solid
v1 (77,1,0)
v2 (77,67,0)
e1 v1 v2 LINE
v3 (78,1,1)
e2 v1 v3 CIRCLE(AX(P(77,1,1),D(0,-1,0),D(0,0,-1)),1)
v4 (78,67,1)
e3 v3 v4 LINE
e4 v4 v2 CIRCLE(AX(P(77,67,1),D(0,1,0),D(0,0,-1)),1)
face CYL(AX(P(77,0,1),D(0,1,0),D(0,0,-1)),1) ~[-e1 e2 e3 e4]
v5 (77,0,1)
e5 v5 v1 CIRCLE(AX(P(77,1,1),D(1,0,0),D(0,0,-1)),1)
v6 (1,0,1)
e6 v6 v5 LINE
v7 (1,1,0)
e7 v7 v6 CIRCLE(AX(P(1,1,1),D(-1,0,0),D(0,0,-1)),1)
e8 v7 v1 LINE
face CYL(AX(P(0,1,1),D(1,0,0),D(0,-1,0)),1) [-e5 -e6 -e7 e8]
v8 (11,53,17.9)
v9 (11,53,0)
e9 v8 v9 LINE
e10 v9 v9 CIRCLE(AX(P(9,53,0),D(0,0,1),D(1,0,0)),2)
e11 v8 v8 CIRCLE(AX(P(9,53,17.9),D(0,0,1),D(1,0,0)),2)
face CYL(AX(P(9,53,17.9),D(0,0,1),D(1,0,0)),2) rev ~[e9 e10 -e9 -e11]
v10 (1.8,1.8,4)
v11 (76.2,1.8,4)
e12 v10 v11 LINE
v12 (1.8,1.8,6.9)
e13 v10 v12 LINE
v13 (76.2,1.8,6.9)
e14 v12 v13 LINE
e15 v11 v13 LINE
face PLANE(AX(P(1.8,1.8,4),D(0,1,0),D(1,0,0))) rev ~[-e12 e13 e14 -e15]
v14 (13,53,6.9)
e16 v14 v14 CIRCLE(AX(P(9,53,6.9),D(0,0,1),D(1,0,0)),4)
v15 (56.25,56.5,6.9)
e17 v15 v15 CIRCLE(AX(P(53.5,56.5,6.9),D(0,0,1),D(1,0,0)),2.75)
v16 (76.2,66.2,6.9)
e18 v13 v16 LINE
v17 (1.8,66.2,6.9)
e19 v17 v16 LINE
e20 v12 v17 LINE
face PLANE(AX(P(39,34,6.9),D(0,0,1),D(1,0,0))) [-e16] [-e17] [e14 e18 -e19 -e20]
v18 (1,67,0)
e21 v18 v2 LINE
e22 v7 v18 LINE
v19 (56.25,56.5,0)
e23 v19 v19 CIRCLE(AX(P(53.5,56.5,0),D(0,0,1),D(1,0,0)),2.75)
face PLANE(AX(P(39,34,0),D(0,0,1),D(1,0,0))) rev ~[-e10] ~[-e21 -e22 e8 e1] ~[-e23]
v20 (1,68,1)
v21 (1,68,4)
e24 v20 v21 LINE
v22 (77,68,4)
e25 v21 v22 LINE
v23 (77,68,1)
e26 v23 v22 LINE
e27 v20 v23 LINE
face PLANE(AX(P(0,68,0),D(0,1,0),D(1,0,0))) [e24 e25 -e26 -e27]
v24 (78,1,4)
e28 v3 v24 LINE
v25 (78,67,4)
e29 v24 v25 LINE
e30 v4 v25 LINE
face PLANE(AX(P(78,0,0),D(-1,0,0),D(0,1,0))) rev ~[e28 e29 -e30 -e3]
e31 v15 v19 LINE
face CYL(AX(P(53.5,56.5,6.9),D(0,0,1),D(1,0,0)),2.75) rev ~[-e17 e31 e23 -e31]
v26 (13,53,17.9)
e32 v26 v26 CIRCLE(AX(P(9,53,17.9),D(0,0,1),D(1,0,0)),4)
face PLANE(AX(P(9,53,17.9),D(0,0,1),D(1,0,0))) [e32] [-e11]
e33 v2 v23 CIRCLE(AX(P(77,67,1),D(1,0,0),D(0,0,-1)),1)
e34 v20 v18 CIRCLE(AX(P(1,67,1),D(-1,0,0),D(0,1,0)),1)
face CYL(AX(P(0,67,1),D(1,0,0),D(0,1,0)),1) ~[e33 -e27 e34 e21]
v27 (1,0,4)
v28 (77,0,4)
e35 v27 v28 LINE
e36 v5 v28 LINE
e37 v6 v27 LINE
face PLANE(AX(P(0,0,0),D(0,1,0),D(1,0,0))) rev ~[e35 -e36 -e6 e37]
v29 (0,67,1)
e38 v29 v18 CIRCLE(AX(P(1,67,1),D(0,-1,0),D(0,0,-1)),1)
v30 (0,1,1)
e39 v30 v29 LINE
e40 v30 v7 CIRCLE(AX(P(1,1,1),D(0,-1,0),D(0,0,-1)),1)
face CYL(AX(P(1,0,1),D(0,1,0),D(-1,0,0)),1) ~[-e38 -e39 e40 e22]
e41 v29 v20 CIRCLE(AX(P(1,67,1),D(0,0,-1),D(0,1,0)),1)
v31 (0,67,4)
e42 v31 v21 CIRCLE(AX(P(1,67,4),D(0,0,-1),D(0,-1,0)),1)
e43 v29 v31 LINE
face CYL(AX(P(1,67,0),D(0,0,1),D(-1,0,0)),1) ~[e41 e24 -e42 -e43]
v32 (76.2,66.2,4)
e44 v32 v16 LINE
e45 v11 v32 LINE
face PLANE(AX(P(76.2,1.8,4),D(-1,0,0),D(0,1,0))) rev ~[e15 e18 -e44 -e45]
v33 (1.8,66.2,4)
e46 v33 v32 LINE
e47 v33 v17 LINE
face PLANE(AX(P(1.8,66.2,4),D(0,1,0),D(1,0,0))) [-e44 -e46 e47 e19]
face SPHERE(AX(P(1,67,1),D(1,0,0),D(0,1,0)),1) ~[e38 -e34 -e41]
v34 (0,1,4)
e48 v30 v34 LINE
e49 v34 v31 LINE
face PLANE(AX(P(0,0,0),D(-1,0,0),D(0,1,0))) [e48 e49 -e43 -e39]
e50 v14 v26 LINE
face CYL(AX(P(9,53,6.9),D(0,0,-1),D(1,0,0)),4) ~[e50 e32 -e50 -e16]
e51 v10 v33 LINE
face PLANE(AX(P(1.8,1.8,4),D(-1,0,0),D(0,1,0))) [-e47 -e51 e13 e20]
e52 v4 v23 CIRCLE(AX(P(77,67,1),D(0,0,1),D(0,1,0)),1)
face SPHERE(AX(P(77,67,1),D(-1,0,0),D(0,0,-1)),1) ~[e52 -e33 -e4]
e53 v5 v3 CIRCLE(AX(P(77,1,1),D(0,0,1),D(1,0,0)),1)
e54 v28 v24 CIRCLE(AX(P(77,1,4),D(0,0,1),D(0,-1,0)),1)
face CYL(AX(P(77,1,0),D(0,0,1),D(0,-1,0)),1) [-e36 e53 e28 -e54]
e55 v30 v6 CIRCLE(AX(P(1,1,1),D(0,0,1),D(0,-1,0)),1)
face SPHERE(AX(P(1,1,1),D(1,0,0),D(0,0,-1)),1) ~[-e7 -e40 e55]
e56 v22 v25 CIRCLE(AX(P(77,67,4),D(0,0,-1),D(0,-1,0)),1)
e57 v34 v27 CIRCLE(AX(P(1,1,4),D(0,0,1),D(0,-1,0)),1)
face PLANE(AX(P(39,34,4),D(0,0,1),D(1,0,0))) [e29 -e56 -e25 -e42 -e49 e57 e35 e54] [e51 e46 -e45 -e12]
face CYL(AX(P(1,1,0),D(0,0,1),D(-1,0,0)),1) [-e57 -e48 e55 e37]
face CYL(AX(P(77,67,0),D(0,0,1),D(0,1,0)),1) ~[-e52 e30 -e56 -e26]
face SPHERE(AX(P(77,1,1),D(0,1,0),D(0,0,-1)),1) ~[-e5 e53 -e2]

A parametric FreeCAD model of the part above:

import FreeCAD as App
import Part
import Sketcher

V = App.Vector
Q = App.Units.Quantity


def edges_at(feature, points):
    """Names of the edges that pass closest to the given points."""
    edges = feature.Shape.Edges
    near = lambda p: min(range(len(edges)), key=lambda i: edges[i].distToShape(Part.Vertex(*p))[0])
    return sorted({f"Edge{near(p) + 1}" for p in points})

doc = App.newDocument("Part")
body = doc.addObject("PartDesign::Body", "Body")

# Sketch on XY plane
sketch1 = body.newObject("Sketcher::SketchObject", "Sketch")
sketch1.AttachmentSupport = (doc.getObject("XY_Plane"), [""])
sketch1.MapMode = "FlatFace"
sketch1.addGeometry(Part.LineSegment(V(0, 68, 0), V(0, 0, 0)), False)
sketch1.addGeometry(Part.LineSegment(V(0, 0, 0), V(78, 0, 0)), False)
sketch1.addGeometry(Part.LineSegment(V(78, 0, 0), V(78, 68, 0)), False)
sketch1.addGeometry(Part.LineSegment(V(78, 68, 0), V(0, 68, 0)), False)
sketch1.addConstraint(Sketcher.Constraint("Coincident", 0, 2, 1, 1))
sketch1.addConstraint(Sketcher.Constraint("Coincident", 1, 2, 2, 1))
sketch1.addConstraint(Sketcher.Constraint("Coincident", 2, 2, 3, 1))
sketch1.addConstraint(Sketcher.Constraint("Coincident", 3, 2, 0, 1))
sketch1.addConstraint(Sketcher.Constraint("Vertical", 0))
sketch1.addConstraint(Sketcher.Constraint("Horizontal", 1))
sketch1.addConstraint(Sketcher.Constraint("Vertical", 2))
sketch1.addConstraint(Sketcher.Constraint("Horizontal", 3))
sketch1.addConstraint(Sketcher.Constraint("Coincident", 0, 2, -1, 1))
sketch1.addConstraint(Sketcher.Constraint("DistanceX", 1, 1, 1, 2, Q("78 mm")))
sketch1.addConstraint(Sketcher.Constraint("DistanceY", 0, 2, 0, 1, Q("68 mm")))
pad1 = body.newObject("PartDesign::Pad", "Pad")
pad1.Profile = sketch1
pad1.Length = 4

# Sketch on XY plane
sketch2 = body.newObject("Sketcher::SketchObject", "Sketch001")
sketch2.AttachmentSupport = (doc.getObject("XY_Plane"), [""])
sketch2.MapMode = "FlatFace"
sketch2.AttachmentOffset = App.Placement(V(0, 0, 4), App.Rotation())
sketch2.addGeometry(Part.LineSegment(V(2, 66, 0), V(2, 2, 0)), False)
sketch2.addGeometry(Part.LineSegment(V(2, 2, 0), V(76, 2, 0)), False)
sketch2.addGeometry(Part.LineSegment(V(76, 2, 0), V(76, 66, 0)), False)
sketch2.addGeometry(Part.LineSegment(V(76, 66, 0), V(2, 66, 0)), False)
sketch2.addConstraint(Sketcher.Constraint("Coincident", 0, 2, 1, 1))
sketch2.addConstraint(Sketcher.Constraint("Coincident", 1, 2, 2, 1))
sketch2.addConstraint(Sketcher.Constraint("Coincident", 2, 2, 3, 1))
sketch2.addConstraint(Sketcher.Constraint("Coincident", 3, 2, 0, 1))
sketch2.addConstraint(Sketcher.Constraint("Vertical", 0))
sketch2.addConstraint(Sketcher.Constraint("Horizontal", 1))
sketch2.addConstraint(Sketcher.Constraint("Vertical", 2))
sketch2.addConstraint(Sketcher.Constraint("Horizontal", 3))
sketch2.addConstraint(Sketcher.Constraint("DistanceX", 1, 1, 1, 2, Q("74.4 mm")))
sketch2.addConstraint(Sketcher.Constraint("DistanceY", 0, 2, 0, 1, Q("64.4 mm")))
sketch2.addConstraint(Sketcher.Constraint("DistanceX", -1, 1, 0, 2, Q("1.8 mm")))
sketch2.addConstraint(Sketcher.Constraint("DistanceY", -1, 1, 0, 2, Q("1.8 mm")))
pad2 = body.newObject("PartDesign::Pad", "Pad001")
pad2.Profile = sketch2
pad2.Length = 2.9

# Sketch on XY plane
sketch3 = body.newObject("Sketcher::SketchObject", "Sketch002")
sketch3.AttachmentSupport = (doc.getObject("XY_Plane"), [""])
sketch3.MapMode = "FlatFace"
sketch3.AttachmentOffset = App.Placement(V(0, 0, 6.9), App.Rotation())
sketch3.addGeometry(Part.Circle(V(9, 53, 0), V(0, 0, 1), 4), False)
sketch3.addConstraint(Sketcher.Constraint("Diameter", 0, Q("8 mm")))
sketch3.addConstraint(Sketcher.Constraint("DistanceX", -1, 1, 0, 3, Q("9 mm")))
sketch3.addConstraint(Sketcher.Constraint("DistanceY", -1, 1, 0, 3, Q("53 mm")))
pad3 = body.newObject("PartDesign::Pad", "Pad002")
pad3.Profile = sketch3
pad3.Length = 11

# Sketch on XY plane
sketch4 = body.newObject("Sketcher::SketchObject", "Sketch003")
sketch4.AttachmentSupport = (doc.getObject("XY_Plane"), [""])
sketch4.MapMode = "FlatFace"
sketch4.AttachmentOffset = App.Placement(V(0, 0, 17.9), App.Rotation())
sketch4.addGeometry(Part.Circle(V(9, 53, 0), V(0, 0, 1), 2), False)
sketch4.addConstraint(Sketcher.Constraint("Diameter", 0, Q("4 mm")))
sketch4.addConstraint(Sketcher.Constraint("DistanceX", -1, 1, 0, 3, Q("9 mm")))
sketch4.addConstraint(Sketcher.Constraint("DistanceY", -1, 1, 0, 3, Q("53 mm")))
pocket1 = body.newObject("PartDesign::Pocket", "Pocket")
pocket1.Profile = sketch4
pocket1.Type = "ThroughAll"

# Sketch on XY plane
sketch5 = body.newObject("Sketcher::SketchObject", "Sketch004")
sketch5.AttachmentSupport = (doc.getObject("XY_Plane"), [""])
sketch5.MapMode = "FlatFace"
sketch5.AttachmentOffset = App.Placement(V(0, 0, 6.9), App.Rotation())
sketch5.addGeometry(Part.Circle(V(53.5, 56.5, 0), V(0, 0, 1), 2.8), False)
sketch5.addConstraint(Sketcher.Constraint("Diameter", 0, Q("5.5 mm")))
sketch5.addConstraint(Sketcher.Constraint("DistanceX", -1, 1, 0, 3, Q("53.5 mm")))
sketch5.addConstraint(Sketcher.Constraint("DistanceY", -1, 1, 0, 3, Q("56.5 mm")))
pocket2 = body.newObject("PartDesign::Pocket", "Pocket001")
pocket2.Profile = sketch5
pocket2.Type = "ThroughAll"
doc.recompute()

fillet = body.newObject("PartDesign::Fillet", "Fillet")
fillet.Base = (pocket2, edges_at(pocket2, [
    (39, 68, 0),
    (78, 34, 0),
    (78, 68, 2),
    (0, 68, 2),
    (39, 0, 0),
    (0, 34, 0),
    (78, 0, 2),
    (0, 0, 2),
]))
fillet.Radius = 1

doc.recompute()
